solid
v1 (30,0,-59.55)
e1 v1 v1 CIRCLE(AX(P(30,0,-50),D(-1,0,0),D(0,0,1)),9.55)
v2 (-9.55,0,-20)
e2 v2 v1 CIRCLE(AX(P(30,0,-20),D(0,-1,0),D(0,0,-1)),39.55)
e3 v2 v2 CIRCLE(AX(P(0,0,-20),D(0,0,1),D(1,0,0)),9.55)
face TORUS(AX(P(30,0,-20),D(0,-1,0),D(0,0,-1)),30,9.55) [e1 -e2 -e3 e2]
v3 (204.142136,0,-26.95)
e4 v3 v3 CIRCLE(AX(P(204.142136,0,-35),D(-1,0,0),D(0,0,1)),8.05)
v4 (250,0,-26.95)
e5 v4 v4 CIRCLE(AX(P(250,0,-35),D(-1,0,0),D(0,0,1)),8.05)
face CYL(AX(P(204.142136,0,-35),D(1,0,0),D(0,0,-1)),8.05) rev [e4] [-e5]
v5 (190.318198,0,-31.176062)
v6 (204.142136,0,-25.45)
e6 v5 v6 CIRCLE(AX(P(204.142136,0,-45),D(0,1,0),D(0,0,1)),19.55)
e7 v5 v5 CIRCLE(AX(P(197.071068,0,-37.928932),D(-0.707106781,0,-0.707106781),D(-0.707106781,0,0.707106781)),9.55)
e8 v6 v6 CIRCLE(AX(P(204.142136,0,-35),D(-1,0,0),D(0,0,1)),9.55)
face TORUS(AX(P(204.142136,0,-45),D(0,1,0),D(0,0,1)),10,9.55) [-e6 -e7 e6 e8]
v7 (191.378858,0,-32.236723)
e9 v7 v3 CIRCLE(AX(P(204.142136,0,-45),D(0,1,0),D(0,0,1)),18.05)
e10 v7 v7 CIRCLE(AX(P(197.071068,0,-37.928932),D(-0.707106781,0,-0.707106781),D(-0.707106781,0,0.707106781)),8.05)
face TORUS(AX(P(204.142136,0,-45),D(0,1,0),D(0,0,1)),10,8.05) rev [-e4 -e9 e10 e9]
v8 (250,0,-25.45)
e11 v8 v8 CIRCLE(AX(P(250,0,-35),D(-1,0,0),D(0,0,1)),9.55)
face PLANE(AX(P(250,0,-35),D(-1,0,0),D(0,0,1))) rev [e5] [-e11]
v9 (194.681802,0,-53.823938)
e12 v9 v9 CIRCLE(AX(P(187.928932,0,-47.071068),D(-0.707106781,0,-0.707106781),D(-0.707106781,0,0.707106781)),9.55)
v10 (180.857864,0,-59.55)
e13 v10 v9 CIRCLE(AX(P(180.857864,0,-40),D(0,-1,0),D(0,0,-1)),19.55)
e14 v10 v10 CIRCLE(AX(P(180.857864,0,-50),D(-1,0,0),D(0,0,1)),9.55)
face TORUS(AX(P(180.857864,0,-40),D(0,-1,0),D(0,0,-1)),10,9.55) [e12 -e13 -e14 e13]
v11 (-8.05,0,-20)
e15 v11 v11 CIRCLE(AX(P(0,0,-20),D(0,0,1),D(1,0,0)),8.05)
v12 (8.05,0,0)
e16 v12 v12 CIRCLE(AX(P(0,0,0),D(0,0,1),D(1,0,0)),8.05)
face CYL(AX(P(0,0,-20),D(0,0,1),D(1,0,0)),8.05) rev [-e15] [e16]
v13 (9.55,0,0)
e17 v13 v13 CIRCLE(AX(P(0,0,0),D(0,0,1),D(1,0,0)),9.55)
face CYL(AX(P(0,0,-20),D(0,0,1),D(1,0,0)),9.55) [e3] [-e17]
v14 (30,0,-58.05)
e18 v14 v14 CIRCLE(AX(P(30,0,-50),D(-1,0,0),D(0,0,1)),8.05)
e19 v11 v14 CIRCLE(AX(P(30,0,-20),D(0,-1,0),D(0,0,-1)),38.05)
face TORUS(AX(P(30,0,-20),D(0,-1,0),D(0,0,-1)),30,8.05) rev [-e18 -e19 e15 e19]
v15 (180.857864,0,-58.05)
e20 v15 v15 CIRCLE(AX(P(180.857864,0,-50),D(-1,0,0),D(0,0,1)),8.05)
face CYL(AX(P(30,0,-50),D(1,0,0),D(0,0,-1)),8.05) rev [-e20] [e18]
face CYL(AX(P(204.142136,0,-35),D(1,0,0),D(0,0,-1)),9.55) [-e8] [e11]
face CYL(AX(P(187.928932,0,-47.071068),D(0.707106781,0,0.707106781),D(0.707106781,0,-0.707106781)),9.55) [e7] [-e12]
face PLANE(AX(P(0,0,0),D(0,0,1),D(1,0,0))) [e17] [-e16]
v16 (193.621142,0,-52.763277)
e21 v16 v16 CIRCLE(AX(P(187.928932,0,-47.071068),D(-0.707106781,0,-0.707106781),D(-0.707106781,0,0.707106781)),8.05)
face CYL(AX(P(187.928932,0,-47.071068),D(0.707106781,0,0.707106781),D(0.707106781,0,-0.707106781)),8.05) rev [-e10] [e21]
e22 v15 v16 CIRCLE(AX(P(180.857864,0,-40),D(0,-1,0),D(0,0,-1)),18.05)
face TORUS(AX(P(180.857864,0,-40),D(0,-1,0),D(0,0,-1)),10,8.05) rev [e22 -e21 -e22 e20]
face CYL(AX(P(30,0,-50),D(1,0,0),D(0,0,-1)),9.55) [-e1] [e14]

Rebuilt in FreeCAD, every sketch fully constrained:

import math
import FreeCAD as App
import Part
import Sketcher
Q = App.Units.Quantity

doc = App.newDocument("Part")
body = doc.addObject("PartDesign::Body", "Body")

sketch1 = body.newObject("Sketcher::SketchObject", "Sketch")
sketch1.AttachmentSupport = (doc.getObject("XY_Plane"), [""])
sketch1.MapMode = "FlatFace"
sketch1.addGeometry([
    Part.Circle(App.Vector(0, 0, 0), App.Vector(0, 0, 1), 10),
    Part.Circle(App.Vector(0, 0, 0), App.Vector(0, 0, 1), 8),
], False)
sketch1.addConstraint([
    Sketcher.Constraint("Coincident", 0, 3, -1, 1),
    Sketcher.Constraint("Coincident", 1, 3, -1, 1),
    Sketcher.Constraint("Diameter", 0, Q("19.1 mm")),
    Sketcher.Constraint("Diameter", 1, Q("16.1 mm")),
])

sketch2 = body.newObject("Sketcher::SketchObject", "Sketch001")
sketch2.AttachmentSupport = (doc.getObject("XZ_Plane"), [""])
sketch2.MapMode = "FlatFace"
sketch2.addGeometry([
    Part.LineSegment(App.Vector(250, -35, 0), App.Vector(204, -35, 0)),
    Part.ArcOfCircle(Part.Circle(App.Vector(204, -45, 0), App.Vector(0, 0, 1), 10), math.radians(90), math.radians(135)),
    Part.LineSegment(App.Vector(197, -38, 0), App.Vector(188, -47, 0)),
    Part.ArcOfCircle(Part.Circle(App.Vector(181, -40, 0), App.Vector(0, 0, 1), 10), math.radians(-90), math.radians(-45)),
    Part.LineSegment(App.Vector(181, -50, 0), App.Vector(30, -50, 0)),
    Part.ArcOfCircle(Part.Circle(App.Vector(30, -20, 0), App.Vector(0, 0, 1), 30), math.radians(180), math.radians(270)),
    Part.LineSegment(App.Vector(0, -20, 0), App.Vector(0, 0, 0)),
], False)
sketch2.addConstraint([
    Sketcher.Constraint("Tangent", 0, 2, 1, 1),
    Sketcher.Constraint("Tangent", 1, 2, 2, 1),
    Sketcher.Constraint("Tangent", 2, 2, 3, 2),
    Sketcher.Constraint("Tangent", 3, 1, 4, 1),
    Sketcher.Constraint("Tangent", 4, 2, 5, 2),
    Sketcher.Constraint("Tangent", 5, 1, 6, 1),
    Sketcher.Constraint("Horizontal", 0),
    Sketcher.Constraint("Horizontal", 4),
    Sketcher.Constraint("Vertical", 6),
    Sketcher.Constraint("Coincident", 6, 2, -1, 1),
    Sketcher.Constraint("Equal", 1, 3),
    Sketcher.Constraint("Radius", 1, Q("10 mm")),
    Sketcher.Constraint("Radius", 5, Q("30 mm")),
    Sketcher.Constraint("DistanceY", 6, 1, 6, 2, Q("20 mm")),
    Sketcher.Constraint("Angle", 2, Q("-135 deg")),
    Sketcher.Constraint("DistanceY", 1, 3, -1, 1, Q("45 mm")),
    Sketcher.Constraint("DistanceX", -1, 1, 0, 1, Q("250 mm")),
    Sketcher.Constraint("DistanceX", 0, 2, 0, 1, Q("45.857864 mm")),
])
doc.recompute()

additivepipe = body.newObject("PartDesign::AdditivePipe", "AdditivePipe")
additivepipe.Profile = sketch1
additivepipe.Spine = (sketch2, ["Edge1", "Edge2", "Edge3", "Edge4", "Edge5", "Edge6", "Edge7"])

doc.recompute()
